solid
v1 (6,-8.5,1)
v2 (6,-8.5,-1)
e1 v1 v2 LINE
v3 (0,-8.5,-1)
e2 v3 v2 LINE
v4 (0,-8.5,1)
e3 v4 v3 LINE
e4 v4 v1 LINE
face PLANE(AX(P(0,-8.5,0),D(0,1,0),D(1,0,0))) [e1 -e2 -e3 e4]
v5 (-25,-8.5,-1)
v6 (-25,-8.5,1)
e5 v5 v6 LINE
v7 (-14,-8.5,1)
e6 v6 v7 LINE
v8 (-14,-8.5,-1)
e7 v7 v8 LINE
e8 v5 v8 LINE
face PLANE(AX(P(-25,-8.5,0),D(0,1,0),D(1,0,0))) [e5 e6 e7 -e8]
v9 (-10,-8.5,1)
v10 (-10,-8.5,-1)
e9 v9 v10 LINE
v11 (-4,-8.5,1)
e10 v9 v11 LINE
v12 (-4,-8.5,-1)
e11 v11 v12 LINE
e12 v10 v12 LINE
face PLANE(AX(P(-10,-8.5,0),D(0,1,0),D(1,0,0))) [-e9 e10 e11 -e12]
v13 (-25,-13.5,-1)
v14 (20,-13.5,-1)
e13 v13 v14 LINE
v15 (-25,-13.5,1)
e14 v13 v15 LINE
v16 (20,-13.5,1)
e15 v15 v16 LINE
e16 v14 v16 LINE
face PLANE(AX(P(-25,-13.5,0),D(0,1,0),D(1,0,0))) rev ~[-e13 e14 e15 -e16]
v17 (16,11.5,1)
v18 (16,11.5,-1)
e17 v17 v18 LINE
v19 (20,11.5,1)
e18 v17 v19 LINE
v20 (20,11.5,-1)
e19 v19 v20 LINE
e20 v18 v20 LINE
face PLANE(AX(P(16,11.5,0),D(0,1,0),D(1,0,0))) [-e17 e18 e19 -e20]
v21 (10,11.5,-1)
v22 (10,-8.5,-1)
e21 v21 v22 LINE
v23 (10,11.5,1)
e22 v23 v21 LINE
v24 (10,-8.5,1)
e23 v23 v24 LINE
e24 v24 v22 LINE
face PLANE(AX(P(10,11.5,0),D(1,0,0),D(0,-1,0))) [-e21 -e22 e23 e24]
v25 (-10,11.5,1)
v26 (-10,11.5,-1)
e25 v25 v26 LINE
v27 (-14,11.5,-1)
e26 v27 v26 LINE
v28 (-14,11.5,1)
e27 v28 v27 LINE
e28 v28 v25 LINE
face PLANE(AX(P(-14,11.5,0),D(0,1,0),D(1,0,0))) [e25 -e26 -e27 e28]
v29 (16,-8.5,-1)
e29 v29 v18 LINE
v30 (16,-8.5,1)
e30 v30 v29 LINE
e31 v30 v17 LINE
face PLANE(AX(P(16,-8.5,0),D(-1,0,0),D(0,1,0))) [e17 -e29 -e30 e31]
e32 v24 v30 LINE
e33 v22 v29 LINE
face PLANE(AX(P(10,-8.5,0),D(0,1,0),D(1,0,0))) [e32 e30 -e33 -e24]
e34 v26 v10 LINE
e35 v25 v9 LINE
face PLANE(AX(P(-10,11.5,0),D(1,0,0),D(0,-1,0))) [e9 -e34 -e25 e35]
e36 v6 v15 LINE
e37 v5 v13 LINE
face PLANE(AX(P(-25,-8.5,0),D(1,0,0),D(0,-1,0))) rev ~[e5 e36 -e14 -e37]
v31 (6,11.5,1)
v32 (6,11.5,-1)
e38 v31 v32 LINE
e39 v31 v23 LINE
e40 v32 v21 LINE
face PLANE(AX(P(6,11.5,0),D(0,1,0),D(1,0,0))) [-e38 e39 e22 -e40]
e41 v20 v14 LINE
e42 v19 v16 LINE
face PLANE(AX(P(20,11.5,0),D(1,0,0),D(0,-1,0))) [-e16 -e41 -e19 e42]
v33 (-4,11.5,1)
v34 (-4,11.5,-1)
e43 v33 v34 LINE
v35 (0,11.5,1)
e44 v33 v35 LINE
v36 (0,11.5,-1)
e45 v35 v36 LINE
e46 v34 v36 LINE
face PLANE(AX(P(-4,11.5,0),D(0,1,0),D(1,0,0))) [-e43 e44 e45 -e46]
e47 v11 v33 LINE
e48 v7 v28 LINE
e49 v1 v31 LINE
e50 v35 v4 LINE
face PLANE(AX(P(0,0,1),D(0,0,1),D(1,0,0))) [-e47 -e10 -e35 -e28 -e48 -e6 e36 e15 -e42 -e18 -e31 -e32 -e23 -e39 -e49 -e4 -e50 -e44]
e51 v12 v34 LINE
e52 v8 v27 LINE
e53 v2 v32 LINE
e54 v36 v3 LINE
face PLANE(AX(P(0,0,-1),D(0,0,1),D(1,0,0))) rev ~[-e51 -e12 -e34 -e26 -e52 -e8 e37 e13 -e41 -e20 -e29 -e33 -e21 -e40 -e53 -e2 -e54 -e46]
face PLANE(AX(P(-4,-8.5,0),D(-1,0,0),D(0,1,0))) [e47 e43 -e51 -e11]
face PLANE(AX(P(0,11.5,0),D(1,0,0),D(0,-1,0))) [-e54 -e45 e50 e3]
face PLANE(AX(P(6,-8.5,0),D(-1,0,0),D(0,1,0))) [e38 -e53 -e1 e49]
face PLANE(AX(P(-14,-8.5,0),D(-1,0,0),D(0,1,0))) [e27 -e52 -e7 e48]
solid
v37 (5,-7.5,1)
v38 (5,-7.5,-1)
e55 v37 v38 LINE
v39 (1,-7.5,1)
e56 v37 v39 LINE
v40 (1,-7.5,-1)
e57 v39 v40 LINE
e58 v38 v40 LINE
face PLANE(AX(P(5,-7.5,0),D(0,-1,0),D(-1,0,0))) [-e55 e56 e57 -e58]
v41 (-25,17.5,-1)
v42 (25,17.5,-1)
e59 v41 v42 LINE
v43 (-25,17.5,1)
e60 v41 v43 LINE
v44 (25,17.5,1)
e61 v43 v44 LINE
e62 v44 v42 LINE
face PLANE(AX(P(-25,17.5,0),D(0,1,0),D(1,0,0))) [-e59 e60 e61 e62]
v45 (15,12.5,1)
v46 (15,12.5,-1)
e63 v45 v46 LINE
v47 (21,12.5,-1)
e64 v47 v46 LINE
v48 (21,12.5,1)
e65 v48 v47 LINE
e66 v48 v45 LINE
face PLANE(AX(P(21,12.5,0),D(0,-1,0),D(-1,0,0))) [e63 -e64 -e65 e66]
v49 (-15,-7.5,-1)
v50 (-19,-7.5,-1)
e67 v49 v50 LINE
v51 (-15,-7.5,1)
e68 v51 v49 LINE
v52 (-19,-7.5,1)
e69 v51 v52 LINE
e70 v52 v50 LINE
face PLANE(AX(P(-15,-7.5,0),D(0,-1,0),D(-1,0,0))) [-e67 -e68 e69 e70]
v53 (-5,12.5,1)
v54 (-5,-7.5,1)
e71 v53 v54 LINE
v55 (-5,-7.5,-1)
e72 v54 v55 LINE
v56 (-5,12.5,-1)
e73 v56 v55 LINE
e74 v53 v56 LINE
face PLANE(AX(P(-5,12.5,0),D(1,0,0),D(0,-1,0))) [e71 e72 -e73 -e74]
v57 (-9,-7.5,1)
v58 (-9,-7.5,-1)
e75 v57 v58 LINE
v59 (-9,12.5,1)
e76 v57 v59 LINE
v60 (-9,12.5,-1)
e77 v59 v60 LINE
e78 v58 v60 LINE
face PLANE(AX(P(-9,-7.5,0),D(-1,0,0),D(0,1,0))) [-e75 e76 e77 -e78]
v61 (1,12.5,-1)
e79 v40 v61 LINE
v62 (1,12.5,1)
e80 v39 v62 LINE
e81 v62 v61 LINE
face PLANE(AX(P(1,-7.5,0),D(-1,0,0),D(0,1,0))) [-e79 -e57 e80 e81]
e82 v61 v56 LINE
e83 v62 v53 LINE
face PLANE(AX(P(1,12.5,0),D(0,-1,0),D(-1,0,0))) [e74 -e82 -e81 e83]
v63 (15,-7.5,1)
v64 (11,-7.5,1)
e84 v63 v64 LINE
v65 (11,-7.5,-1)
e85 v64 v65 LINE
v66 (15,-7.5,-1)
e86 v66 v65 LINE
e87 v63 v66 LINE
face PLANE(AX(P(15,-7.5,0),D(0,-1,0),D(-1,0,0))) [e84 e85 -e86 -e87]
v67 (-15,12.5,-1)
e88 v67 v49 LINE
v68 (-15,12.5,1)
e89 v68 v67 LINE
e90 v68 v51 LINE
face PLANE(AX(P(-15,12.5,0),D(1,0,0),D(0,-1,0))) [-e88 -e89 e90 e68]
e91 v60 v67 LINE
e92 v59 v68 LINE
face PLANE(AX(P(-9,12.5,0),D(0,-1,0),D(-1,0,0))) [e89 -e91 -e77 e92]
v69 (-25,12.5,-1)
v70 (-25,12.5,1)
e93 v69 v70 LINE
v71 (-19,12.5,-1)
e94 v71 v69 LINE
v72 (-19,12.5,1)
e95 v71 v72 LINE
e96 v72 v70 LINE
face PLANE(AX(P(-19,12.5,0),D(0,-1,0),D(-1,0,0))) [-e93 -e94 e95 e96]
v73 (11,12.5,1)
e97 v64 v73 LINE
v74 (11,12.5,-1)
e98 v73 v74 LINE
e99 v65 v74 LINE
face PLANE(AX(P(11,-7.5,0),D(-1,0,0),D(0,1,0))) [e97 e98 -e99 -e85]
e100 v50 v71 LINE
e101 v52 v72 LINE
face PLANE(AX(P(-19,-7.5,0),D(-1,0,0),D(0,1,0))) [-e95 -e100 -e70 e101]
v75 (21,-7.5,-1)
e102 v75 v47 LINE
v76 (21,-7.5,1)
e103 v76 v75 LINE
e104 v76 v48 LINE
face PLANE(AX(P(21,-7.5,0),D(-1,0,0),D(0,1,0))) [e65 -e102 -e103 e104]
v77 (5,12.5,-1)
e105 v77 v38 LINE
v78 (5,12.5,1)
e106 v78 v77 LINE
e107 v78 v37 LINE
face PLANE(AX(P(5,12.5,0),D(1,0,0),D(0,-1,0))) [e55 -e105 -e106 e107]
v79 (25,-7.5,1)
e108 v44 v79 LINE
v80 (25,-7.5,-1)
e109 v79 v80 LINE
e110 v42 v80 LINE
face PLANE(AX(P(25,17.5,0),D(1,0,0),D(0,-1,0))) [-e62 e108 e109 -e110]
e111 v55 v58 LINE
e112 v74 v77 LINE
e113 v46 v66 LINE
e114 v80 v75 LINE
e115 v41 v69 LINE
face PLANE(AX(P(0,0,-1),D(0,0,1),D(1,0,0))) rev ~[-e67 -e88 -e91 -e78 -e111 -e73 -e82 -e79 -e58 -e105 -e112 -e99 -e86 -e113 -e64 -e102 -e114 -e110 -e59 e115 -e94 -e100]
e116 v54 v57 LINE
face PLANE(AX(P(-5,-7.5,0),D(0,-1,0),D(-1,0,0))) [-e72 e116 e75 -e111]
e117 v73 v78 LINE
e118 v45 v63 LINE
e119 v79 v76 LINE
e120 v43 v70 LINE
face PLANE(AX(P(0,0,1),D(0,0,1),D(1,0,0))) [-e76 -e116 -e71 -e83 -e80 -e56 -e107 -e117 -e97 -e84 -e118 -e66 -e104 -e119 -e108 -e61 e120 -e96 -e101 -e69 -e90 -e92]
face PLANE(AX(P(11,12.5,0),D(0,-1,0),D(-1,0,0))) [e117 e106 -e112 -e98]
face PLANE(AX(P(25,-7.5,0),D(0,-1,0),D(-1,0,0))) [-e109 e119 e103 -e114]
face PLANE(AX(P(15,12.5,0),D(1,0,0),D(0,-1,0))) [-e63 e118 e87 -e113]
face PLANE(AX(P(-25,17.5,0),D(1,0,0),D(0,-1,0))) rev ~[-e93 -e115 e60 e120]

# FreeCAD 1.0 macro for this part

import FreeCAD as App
import Part
import Sketcher
Q = App.Units.Quantity


def add_polygon(sketch, points):
    """Adds a closed chain of lines whose ends are joined by coincident constraints."""
    first, n = sketch.GeometryCount, len(points)
    for a, b in zip(points, points[1:] + points[:1]):
        sketch.addGeometry(Part.LineSegment(App.Vector(*a, 0), App.Vector(*b, 0)), False)
    for i in range(n):
        sketch.addConstraint(Sketcher.Constraint("Coincident", first + i, 2, first + (i + 1) % n, 1))

doc = App.newDocument("Part")
params = doc.addObject("Spreadsheet::Sheet", "Params")
for row, (alias, value) in enumerate([
    ("sketch1_width", "50 mm"),
    ("sketch1_width2", "6 mm"),
    ("sketch1_height", "5 mm"),
    ("sketch1_height2", "25 mm"),
    ("pad1_length", "2 mm"),
], start=1):
    params.set(f"A{row}", alias)
    params.set(f"B{row}", "=" + value)
    params.setAlias(f"B{row}", alias)

body = doc.addObject("PartDesign::Body", "Body")
body.AllowCompound = True

# Sketch on XY plane
sketch1 = body.newObject("Sketcher::SketchObject", "Sketch")
sketch1.AttachmentSupport = (doc.getObject("XY_Plane"), [""])
sketch1.MapMode = "FlatFace"
add_polygon(sketch1, [(25, 17.5), (-25, 17.5), (-25, 12.5), (-19, 12.5), (-19, -7.5), (-15, -7.5), (-15, 12.5), (-9, 12.5), (-9, -7.5), (-5, -7.5), (-5, 12.5), (1, 12.5), (1, -7.5), (5, -7.5), (5, 12.5), (11, 12.5), (11, -7.5), (15, -7.5), (15, 12.5), (21, 12.5), (21, -7.5), (25, -7.5)])  # lines 0-21
add_polygon(sketch1, [(-14, -8.5), (-25, -8.5), (-25, -13.5), (20, -13.5), (20, 11.5), (16, 11.5), (16, -8.5), (10, -8.5), (10, 11.5), (6, 11.5), (6, -8.5), (0, -8.5), (0, 11.5), (-4, 11.5), (-4, -8.5), (-10, -8.5), (-10, 11.5), (-14, 11.5)])  # lines 22-39
sketch1.addConstraint(Sketcher.Constraint("Horizontal", 0))
sketch1.addConstraint(Sketcher.Constraint("Vertical", 1))
sketch1.addConstraint(Sketcher.Constraint("Horizontal", 2))
sketch1.addConstraint(Sketcher.Constraint("Vertical", 3))
sketch1.addConstraint(Sketcher.Constraint("Horizontal", 4))
sketch1.addConstraint(Sketcher.Constraint("Vertical", 5))
sketch1.addConstraint(Sketcher.Constraint("Horizontal", 6))
sketch1.addConstraint(Sketcher.Constraint("Vertical", 7))
sketch1.addConstraint(Sketcher.Constraint("Horizontal", 8))
sketch1.addConstraint(Sketcher.Constraint("Vertical", 9))
sketch1.addConstraint(Sketcher.Constraint("Horizontal", 10))
sketch1.addConstraint(Sketcher.Constraint("Vertical", 11))
sketch1.addConstraint(Sketcher.Constraint("Horizontal", 12))
sketch1.addConstraint(Sketcher.Constraint("Vertical", 13))
sketch1.addConstraint(Sketcher.Constraint("Horizontal", 14))
sketch1.addConstraint(Sketcher.Constraint("Vertical", 15))
sketch1.addConstraint(Sketcher.Constraint("Horizontal", 16))
sketch1.addConstraint(Sketcher.Constraint("Vertical", 17))
sketch1.addConstraint(Sketcher.Constraint("Horizontal", 18))
sketch1.addConstraint(Sketcher.Constraint("Vertical", 19))
sketch1.addConstraint(Sketcher.Constraint("Horizontal", 20))
sketch1.addConstraint(Sketcher.Constraint("Vertical", 21))
sketch1.addConstraint(Sketcher.Constraint("Horizontal", 22))
sketch1.addConstraint(Sketcher.Constraint("Vertical", 23))
sketch1.addConstraint(Sketcher.Constraint("Horizontal", 24))
sketch1.addConstraint(Sketcher.Constraint("Vertical", 25))
sketch1.addConstraint(Sketcher.Constraint("Horizontal", 26))
sketch1.addConstraint(Sketcher.Constraint("Vertical", 27))
sketch1.addConstraint(Sketcher.Constraint("Horizontal", 28))
sketch1.addConstraint(Sketcher.Constraint("Vertical", 29))
sketch1.addConstraint(Sketcher.Constraint("Horizontal", 30))
sketch1.addConstraint(Sketcher.Constraint("Vertical", 31))
sketch1.addConstraint(Sketcher.Constraint("Horizontal", 32))
sketch1.addConstraint(Sketcher.Constraint("Vertical", 33))
sketch1.addConstraint(Sketcher.Constraint("Horizontal", 34))
sketch1.addConstraint(Sketcher.Constraint("Vertical", 35))
sketch1.addConstraint(Sketcher.Constraint("Horizontal", 36))
sketch1.addConstraint(Sketcher.Constraint("Vertical", 37))
sketch1.addConstraint(Sketcher.Constraint("Horizontal", 38))
sketch1.addConstraint(Sketcher.Constraint("Vertical", 39))
sketch1.addConstraint(Sketcher.Constraint("Symmetric", 8, 2, 12, 2, -2))
sketch1.addConstraint(Sketcher.Constraint("Symmetric", 4, 2, 16, 2, -2))
sketch1.addConstraint(Sketcher.Constraint("Symmetric", 28, 2, 36, 2, -2))
sketch1.addConstraint(Sketcher.Constraint("PointOnObject", 32, 2, -2))
sketch1.addConstraint(Sketcher.Constraint("Horizontal", 2, 2, 5, 2))
sketch1.addConstraint(Sketcher.Constraint("Horizontal", 4, 2, 7, 2))
sketch1.addConstraint(Sketcher.Constraint("Horizontal", 6, 2, 9, 2))
sketch1.addConstraint(Sketcher.Constraint("Horizontal", 10, 2, 13, 2))
sketch1.addConstraint(Sketcher.Constraint("Horizontal", 14, 2, 17, 2))
sketch1.addConstraint(Sketcher.Constraint("Horizontal", 16, 2, 19, 2))
sketch1.addConstraint(Sketcher.Constraint("Horizontal", 22, 2, 27, 2))
sketch1.addConstraint(Sketcher.Constraint("Horizontal", 26, 2, 29, 2))
sketch1.addConstraint(Sketcher.Constraint("Horizontal", 28, 2, 31, 2))
sketch1.addConstraint(Sketcher.Constraint("Horizontal", 30, 2, 33, 2))
sketch1.addConstraint(Sketcher.Constraint("Horizontal", 34, 2, 37, 2))
sketch1.addConstraint(Sketcher.Constraint("Vertical", 1, 2, 22, 2))
sketch1.addConstraint(Sketcher.Constraint("Equal", 2, 6))
sketch1.addConstraint(Sketcher.Constraint("Equal", 4, 8))
sketch1.addConstraint(Sketcher.Constraint("Equal", 6, 10))
sketch1.addConstraint(Sketcher.Constraint("Equal", 8, 12))
sketch1.addConstraint(Sketcher.Constraint("Equal", 10, 14))
sketch1.addConstraint(Sketcher.Constraint("Equal", 14, 18))
sketch1.addConstraint(Sketcher.Constraint("Equal", 16, 20))
sketch1.addConstraint(Sketcher.Constraint("Equal", 20, 26))
sketch1.addConstraint(Sketcher.Constraint("Equal", 18, 28))
sketch1.addConstraint(Sketcher.Constraint("Equal", 26, 30))
sketch1.addConstraint(Sketcher.Constraint("Equal", 28, 32))
sketch1.addConstraint(Sketcher.Constraint("Equal", 30, 34))
sketch1.addConstraint(Sketcher.Constraint("Equal", 34, 38))
sketch1.addConstraint(Sketcher.Constraint("Equal", 1, 23))
sketch1.addConstraint(Sketcher.Constraint("Equal", 21, 25))
sketch1.addConstraint(Sketcher.Constraint("DistanceX", 0, 2, 0, 1, Q("50 mm")))
sketch1.addConstraint(Sketcher.Constraint("DistanceX", 2, 1, 2, 2, Q("6 mm")))
sketch1.addConstraint(Sketcher.Constraint("DistanceY", 1, 2, 1, 1, Q("5 mm")))
sketch1.addConstraint(Sketcher.Constraint("DistanceY", 21, 1, 21, 2, Q("25 mm")))
sketch1.addConstraint(Sketcher.Constraint("DistanceY", 23, 2, 3, 2, Q("6 mm")))
sketch1.addConstraint(Sketcher.Constraint("DistanceY", -1, 1, 0, 2, Q("17.5 mm")))
sketch1.setExpression("Constraints[111]", "Params.sketch1_width")
sketch1.setExpression("Constraints[112]", "Params.sketch1_width2")
sketch1.setExpression("Constraints[113]", "Params.sketch1_height")
sketch1.setExpression("Constraints[114]", "Params.sketch1_height2")
pad1 = body.newObject("PartDesign::Pad", "Pad")
pad1.Profile = sketch1
pad1.setExpression("Length", "Params.pad1_length")
pad1.Midplane = True

doc.recompute()
